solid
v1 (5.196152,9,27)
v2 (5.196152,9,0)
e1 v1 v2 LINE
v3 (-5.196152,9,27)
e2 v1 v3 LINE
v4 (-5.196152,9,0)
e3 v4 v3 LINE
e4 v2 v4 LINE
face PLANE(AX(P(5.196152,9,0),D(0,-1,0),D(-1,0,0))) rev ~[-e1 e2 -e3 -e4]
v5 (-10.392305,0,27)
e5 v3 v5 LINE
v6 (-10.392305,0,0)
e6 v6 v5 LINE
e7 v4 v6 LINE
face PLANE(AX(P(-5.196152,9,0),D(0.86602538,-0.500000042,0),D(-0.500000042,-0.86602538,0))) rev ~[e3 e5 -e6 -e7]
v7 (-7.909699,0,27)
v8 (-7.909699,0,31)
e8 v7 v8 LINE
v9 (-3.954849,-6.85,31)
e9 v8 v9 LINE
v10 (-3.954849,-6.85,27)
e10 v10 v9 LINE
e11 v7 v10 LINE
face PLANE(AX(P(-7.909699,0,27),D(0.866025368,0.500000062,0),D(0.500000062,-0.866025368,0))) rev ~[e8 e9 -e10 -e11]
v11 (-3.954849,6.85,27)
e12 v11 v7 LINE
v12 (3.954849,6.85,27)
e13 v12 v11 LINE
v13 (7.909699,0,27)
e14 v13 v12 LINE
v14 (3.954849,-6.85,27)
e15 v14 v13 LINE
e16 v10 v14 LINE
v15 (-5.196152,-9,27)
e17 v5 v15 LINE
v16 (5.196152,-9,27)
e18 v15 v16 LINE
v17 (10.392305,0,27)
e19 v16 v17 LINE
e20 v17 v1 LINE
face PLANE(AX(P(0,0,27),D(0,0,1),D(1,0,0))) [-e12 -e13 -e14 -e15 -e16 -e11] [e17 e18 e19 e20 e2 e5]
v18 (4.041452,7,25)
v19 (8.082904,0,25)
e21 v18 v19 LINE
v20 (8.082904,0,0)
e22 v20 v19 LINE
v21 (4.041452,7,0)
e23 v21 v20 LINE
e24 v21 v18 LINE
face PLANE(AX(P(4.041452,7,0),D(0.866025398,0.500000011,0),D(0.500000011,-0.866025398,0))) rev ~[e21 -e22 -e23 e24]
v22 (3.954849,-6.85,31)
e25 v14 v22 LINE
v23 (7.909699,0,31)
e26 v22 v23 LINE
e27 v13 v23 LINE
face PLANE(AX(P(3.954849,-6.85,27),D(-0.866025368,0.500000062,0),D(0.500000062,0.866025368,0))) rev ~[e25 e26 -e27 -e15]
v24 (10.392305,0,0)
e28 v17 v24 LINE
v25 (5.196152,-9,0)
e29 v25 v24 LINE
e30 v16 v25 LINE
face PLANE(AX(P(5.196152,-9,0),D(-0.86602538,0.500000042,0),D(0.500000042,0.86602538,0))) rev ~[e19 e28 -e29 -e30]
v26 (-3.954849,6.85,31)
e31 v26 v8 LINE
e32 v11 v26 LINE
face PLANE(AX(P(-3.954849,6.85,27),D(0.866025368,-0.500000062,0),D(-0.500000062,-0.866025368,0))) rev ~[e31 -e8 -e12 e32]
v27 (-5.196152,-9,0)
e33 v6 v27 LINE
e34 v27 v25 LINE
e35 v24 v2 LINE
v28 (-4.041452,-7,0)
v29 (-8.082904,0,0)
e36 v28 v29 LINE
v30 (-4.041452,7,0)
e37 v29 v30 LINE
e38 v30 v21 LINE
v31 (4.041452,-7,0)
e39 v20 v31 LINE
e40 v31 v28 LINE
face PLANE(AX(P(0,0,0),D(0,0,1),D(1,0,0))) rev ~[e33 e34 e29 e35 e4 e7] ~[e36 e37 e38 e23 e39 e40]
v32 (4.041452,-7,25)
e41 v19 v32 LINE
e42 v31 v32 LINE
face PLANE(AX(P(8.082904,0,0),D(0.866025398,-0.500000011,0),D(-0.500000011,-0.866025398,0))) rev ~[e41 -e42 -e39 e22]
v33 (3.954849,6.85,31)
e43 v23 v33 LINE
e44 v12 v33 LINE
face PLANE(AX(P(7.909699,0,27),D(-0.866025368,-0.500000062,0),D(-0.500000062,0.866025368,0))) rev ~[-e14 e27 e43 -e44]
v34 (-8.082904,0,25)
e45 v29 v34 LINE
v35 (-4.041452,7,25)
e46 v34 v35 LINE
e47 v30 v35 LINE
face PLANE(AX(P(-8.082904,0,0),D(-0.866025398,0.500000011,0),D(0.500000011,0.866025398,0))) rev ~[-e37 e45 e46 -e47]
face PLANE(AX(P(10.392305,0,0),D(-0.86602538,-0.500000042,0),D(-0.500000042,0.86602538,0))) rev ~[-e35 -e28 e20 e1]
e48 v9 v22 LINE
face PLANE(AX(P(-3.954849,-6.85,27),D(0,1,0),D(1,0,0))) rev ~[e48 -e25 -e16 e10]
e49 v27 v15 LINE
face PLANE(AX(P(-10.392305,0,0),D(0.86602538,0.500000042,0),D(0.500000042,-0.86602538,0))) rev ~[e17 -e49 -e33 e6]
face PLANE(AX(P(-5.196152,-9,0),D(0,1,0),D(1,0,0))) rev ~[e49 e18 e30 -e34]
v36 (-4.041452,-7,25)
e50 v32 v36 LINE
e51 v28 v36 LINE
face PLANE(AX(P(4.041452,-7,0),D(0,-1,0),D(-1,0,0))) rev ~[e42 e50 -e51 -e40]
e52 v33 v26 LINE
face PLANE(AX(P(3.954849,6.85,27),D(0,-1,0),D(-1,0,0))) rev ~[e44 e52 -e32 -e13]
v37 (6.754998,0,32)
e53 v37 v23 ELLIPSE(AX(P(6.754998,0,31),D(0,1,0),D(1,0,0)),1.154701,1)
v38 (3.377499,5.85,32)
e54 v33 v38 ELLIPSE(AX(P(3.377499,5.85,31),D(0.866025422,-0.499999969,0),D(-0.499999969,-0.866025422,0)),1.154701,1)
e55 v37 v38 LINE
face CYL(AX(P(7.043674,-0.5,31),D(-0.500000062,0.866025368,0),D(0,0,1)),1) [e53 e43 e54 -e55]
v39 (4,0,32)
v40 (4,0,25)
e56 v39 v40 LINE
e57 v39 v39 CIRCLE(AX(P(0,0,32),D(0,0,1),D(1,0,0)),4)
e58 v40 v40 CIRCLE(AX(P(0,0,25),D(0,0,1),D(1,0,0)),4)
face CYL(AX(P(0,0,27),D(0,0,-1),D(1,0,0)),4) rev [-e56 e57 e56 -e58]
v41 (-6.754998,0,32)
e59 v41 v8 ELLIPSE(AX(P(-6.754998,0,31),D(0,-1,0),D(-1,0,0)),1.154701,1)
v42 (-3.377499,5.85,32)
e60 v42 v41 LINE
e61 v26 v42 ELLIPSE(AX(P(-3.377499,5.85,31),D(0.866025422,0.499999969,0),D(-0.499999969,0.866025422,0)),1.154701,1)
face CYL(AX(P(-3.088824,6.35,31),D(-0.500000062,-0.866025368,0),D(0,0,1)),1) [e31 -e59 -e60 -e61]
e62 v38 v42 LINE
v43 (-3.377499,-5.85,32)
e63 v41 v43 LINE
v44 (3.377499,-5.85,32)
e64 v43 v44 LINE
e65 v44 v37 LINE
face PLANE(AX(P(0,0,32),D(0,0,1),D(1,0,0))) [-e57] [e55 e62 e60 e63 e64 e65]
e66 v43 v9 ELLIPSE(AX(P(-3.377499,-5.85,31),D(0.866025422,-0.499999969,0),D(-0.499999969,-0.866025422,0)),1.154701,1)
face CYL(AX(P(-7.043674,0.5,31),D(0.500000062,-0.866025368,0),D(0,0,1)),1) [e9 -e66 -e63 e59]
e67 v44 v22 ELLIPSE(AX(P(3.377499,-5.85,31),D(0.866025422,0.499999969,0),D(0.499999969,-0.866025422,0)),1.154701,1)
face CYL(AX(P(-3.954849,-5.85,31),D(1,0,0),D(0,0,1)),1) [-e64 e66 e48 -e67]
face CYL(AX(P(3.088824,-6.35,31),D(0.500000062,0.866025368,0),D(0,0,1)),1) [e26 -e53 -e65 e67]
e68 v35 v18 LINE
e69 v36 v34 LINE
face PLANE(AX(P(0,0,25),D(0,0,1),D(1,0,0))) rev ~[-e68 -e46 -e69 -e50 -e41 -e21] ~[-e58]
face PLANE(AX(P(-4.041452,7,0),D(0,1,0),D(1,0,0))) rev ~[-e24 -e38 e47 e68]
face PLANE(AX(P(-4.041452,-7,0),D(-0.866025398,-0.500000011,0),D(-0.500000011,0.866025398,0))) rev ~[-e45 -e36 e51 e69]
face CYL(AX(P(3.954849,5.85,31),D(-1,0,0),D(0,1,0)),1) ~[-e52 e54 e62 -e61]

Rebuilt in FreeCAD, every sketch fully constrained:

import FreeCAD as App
import Part
import Sketcher
from FreeCAD import Vector
Q = App.Units.Quantity


def edges_at(feature, points):
    """Names of the edges that pass closest to the given points."""
    edges = feature.Shape.Edges
    near = lambda p: min(range(len(edges)), key=lambda i: edges[i].distToShape(Part.Vertex(*p))[0])
    return sorted({f"Edge{near(p) + 1}" for p in points})


def add_polygon(sketch, points):
    """Adds a closed chain of lines whose ends are joined by coincident constraints."""
    first, n = sketch.GeometryCount, len(points)
    for a, b in zip(points, points[1:] + points[:1]):
        sketch.addGeometry(Part.LineSegment(App.Vector(*a, 0), App.Vector(*b, 0)), False)
    for i in range(n):
        sketch.addConstraint(Sketcher.Constraint("Coincident", first + i, 2, first + (i + 1) % n, 1))

doc = App.newDocument("Part")
body = doc.addObject("PartDesign::Body", "Body")

# Sketch on XY plane
sketch1 = body.newObject("Sketcher::SketchObject", "Sketch")
sketch1.AttachmentSupport = (doc.getObject("XY_Plane"), [""])
sketch1.MapMode = "FlatFace"
add_polygon(sketch1, [(5.196152, 9), (-5.196152, 9), (-10.392305, 0), (-5.196152, -9), (5.196152, -9), (10.392305, 0)])  # lines 0-5
add_polygon(sketch1, [(-4.041452, -7), (-8.082904, 0), (-4.041452, 7), (4.041452, 7), (8.082904, 0), (4.041452, -7)])  # lines 6-11
sketch1.addConstraint([
    Sketcher.Constraint("Horizontal", 0),
    Sketcher.Constraint("Horizontal", 3),
    Sketcher.Constraint("Horizontal", 8),
    Sketcher.Constraint("Horizontal", 11),
    Sketcher.Constraint("Symmetric", 0, 2, 3, 2, -1, 1),
    Sketcher.Constraint("Symmetric", 1, 2, 4, 2, -1, 1),
    Sketcher.Constraint("Symmetric", 6, 2, 9, 2, -1, 1),
    Sketcher.Constraint("Symmetric", 7, 2, 10, 2, -1, 1),
    Sketcher.Constraint("PointOnObject", 1, 2, -1),
    Sketcher.Constraint("PointOnObject", 6, 2, -1),
    Sketcher.Constraint("Parallel", 2, 5),
    Sketcher.Constraint("Parallel", 5, 6),
    Sketcher.Constraint("Parallel", 4, 7),
    Sketcher.Constraint("Parallel", 6, 9),
    Sketcher.Constraint("Vertical", 0, 2, 2, 2),
    Sketcher.Constraint("Angle", 1, Q("-120.000003 deg")),
    Sketcher.Constraint("DistanceY", -1, 1, 0, 2, 9.0),
    Sketcher.Constraint("DistanceY", -1, 1, 7, 2, 7.0),
    Sketcher.Constraint("DistanceX", 1, 2, 6, 2, 2.309401),
    Sketcher.Constraint("DistanceX", 0, 2, 0, 1, 10.392304),
])
pad1 = body.newObject("PartDesign::Pad", "Pad")
pad1.Profile = sketch1
pad1.Length = 27

# Sketch on XY plane
sketch2 = body.newObject("Sketcher::SketchObject", "Sketch001")
sketch2.AttachmentSupport = (doc.getObject("XY_Plane"), [""])
sketch2.MapMode = "FlatFace"
sketch2.AttachmentOffset = App.Placement(Vector(0, 0, 27), App.Rotation())
add_polygon(sketch2, [(5.196152, 9), (-5.196152, 9), (-10.392305, 0), (-5.196152, -9), (5.196152, -9), (10.392305, 0)])  # lines 0-5
sketch2.addGeometry(Part.Circle(Vector(0, 0, 0), Vector(0, 0, 1), 4), False)  # 6
sketch2.addConstraint([
    Sketcher.Constraint("Horizontal", 0),
    Sketcher.Constraint("Horizontal", 3),
    Sketcher.Constraint("Coincident", 6, 3, -1, 1),
    Sketcher.Constraint("Symmetric", 0, 2, 3, 2, -1, 1),
    Sketcher.Constraint("Symmetric", 1, 2, 4, 2, -1, 1),
    Sketcher.Constraint("PointOnObject", 1, 2, -1),
    Sketcher.Constraint("Parallel", 2, 5),
    Sketcher.Constraint("Vertical", 0, 2, 2, 2),
    Sketcher.Constraint("Diameter", 6, 8.0),
    Sketcher.Constraint("Angle", 1, Q("-120.000003 deg")),
    Sketcher.Constraint("DistanceY", -1, 1, 0, 2, 9.0),
    Sketcher.Constraint("DistanceX", 0, 2, 0, 1, 10.392304),
])
pad2 = body.newObject("PartDesign::Pad", "Pad001")
pad2.Profile = sketch2
pad2.Length = 2
pad2.Reversed = True

# Sketch on XY plane
sketch3 = body.newObject("Sketcher::SketchObject", "Sketch002")
sketch3.AttachmentSupport = (doc.getObject("XY_Plane"), [""])
sketch3.MapMode = "FlatFace"
sketch3.AttachmentOffset = App.Placement(Vector(0, 0, 27), App.Rotation())
add_polygon(sketch3, [(3.954849, 6.85), (-3.954849, 6.85), (-7.909699, 0), (-3.954849, -6.85), (3.954849, -6.85), (7.909699, 0)])  # lines 0-5
sketch3.addGeometry(Part.Circle(Vector(0, 0, 0), Vector(0, 0, 1), 4), False)  # 6
sketch3.addConstraint([
    Sketcher.Constraint("Horizontal", 0),
    Sketcher.Constraint("Horizontal", 3),
    Sketcher.Constraint("Coincident", 6, 3, -1, 1),
    Sketcher.Constraint("Symmetric", 0, 2, 3, 2, -1, 1),
    Sketcher.Constraint("Symmetric", 1, 2, 4, 2, -1, 1),
    Sketcher.Constraint("PointOnObject", 1, 2, -1),
    Sketcher.Constraint("Parallel", 2, 5),
    Sketcher.Constraint("Vertical", 0, 2, 2, 2),
    Sketcher.Constraint("Diameter", 6, 8.0),
    Sketcher.Constraint("Angle", 1, Q("-120.000004 deg")),
    Sketcher.Constraint("DistanceY", 2, 2, 0, 2, 13.7),
    Sketcher.Constraint("DistanceX", 1, 2, -1, 1, 7.909699),
])
pad3 = body.newObject("PartDesign::Pad", "Pad002")
pad3.Profile = sketch3
pad3.Length = 5
doc.recompute()

fillet = body.newObject("PartDesign::Fillet", "Fillet")
fillet.Base = (pad3, edges_at(pad3, [
    (0, 6.85, 32),
    (-5.932, 3.425, 32),
    (-5.932, -3.425, 32),
    (0, -6.85, 32),
    (5.932, -3.425, 32),
    (5.932, 3.425, 32),
]))
fillet.Radius = 1

doc.recompute()
